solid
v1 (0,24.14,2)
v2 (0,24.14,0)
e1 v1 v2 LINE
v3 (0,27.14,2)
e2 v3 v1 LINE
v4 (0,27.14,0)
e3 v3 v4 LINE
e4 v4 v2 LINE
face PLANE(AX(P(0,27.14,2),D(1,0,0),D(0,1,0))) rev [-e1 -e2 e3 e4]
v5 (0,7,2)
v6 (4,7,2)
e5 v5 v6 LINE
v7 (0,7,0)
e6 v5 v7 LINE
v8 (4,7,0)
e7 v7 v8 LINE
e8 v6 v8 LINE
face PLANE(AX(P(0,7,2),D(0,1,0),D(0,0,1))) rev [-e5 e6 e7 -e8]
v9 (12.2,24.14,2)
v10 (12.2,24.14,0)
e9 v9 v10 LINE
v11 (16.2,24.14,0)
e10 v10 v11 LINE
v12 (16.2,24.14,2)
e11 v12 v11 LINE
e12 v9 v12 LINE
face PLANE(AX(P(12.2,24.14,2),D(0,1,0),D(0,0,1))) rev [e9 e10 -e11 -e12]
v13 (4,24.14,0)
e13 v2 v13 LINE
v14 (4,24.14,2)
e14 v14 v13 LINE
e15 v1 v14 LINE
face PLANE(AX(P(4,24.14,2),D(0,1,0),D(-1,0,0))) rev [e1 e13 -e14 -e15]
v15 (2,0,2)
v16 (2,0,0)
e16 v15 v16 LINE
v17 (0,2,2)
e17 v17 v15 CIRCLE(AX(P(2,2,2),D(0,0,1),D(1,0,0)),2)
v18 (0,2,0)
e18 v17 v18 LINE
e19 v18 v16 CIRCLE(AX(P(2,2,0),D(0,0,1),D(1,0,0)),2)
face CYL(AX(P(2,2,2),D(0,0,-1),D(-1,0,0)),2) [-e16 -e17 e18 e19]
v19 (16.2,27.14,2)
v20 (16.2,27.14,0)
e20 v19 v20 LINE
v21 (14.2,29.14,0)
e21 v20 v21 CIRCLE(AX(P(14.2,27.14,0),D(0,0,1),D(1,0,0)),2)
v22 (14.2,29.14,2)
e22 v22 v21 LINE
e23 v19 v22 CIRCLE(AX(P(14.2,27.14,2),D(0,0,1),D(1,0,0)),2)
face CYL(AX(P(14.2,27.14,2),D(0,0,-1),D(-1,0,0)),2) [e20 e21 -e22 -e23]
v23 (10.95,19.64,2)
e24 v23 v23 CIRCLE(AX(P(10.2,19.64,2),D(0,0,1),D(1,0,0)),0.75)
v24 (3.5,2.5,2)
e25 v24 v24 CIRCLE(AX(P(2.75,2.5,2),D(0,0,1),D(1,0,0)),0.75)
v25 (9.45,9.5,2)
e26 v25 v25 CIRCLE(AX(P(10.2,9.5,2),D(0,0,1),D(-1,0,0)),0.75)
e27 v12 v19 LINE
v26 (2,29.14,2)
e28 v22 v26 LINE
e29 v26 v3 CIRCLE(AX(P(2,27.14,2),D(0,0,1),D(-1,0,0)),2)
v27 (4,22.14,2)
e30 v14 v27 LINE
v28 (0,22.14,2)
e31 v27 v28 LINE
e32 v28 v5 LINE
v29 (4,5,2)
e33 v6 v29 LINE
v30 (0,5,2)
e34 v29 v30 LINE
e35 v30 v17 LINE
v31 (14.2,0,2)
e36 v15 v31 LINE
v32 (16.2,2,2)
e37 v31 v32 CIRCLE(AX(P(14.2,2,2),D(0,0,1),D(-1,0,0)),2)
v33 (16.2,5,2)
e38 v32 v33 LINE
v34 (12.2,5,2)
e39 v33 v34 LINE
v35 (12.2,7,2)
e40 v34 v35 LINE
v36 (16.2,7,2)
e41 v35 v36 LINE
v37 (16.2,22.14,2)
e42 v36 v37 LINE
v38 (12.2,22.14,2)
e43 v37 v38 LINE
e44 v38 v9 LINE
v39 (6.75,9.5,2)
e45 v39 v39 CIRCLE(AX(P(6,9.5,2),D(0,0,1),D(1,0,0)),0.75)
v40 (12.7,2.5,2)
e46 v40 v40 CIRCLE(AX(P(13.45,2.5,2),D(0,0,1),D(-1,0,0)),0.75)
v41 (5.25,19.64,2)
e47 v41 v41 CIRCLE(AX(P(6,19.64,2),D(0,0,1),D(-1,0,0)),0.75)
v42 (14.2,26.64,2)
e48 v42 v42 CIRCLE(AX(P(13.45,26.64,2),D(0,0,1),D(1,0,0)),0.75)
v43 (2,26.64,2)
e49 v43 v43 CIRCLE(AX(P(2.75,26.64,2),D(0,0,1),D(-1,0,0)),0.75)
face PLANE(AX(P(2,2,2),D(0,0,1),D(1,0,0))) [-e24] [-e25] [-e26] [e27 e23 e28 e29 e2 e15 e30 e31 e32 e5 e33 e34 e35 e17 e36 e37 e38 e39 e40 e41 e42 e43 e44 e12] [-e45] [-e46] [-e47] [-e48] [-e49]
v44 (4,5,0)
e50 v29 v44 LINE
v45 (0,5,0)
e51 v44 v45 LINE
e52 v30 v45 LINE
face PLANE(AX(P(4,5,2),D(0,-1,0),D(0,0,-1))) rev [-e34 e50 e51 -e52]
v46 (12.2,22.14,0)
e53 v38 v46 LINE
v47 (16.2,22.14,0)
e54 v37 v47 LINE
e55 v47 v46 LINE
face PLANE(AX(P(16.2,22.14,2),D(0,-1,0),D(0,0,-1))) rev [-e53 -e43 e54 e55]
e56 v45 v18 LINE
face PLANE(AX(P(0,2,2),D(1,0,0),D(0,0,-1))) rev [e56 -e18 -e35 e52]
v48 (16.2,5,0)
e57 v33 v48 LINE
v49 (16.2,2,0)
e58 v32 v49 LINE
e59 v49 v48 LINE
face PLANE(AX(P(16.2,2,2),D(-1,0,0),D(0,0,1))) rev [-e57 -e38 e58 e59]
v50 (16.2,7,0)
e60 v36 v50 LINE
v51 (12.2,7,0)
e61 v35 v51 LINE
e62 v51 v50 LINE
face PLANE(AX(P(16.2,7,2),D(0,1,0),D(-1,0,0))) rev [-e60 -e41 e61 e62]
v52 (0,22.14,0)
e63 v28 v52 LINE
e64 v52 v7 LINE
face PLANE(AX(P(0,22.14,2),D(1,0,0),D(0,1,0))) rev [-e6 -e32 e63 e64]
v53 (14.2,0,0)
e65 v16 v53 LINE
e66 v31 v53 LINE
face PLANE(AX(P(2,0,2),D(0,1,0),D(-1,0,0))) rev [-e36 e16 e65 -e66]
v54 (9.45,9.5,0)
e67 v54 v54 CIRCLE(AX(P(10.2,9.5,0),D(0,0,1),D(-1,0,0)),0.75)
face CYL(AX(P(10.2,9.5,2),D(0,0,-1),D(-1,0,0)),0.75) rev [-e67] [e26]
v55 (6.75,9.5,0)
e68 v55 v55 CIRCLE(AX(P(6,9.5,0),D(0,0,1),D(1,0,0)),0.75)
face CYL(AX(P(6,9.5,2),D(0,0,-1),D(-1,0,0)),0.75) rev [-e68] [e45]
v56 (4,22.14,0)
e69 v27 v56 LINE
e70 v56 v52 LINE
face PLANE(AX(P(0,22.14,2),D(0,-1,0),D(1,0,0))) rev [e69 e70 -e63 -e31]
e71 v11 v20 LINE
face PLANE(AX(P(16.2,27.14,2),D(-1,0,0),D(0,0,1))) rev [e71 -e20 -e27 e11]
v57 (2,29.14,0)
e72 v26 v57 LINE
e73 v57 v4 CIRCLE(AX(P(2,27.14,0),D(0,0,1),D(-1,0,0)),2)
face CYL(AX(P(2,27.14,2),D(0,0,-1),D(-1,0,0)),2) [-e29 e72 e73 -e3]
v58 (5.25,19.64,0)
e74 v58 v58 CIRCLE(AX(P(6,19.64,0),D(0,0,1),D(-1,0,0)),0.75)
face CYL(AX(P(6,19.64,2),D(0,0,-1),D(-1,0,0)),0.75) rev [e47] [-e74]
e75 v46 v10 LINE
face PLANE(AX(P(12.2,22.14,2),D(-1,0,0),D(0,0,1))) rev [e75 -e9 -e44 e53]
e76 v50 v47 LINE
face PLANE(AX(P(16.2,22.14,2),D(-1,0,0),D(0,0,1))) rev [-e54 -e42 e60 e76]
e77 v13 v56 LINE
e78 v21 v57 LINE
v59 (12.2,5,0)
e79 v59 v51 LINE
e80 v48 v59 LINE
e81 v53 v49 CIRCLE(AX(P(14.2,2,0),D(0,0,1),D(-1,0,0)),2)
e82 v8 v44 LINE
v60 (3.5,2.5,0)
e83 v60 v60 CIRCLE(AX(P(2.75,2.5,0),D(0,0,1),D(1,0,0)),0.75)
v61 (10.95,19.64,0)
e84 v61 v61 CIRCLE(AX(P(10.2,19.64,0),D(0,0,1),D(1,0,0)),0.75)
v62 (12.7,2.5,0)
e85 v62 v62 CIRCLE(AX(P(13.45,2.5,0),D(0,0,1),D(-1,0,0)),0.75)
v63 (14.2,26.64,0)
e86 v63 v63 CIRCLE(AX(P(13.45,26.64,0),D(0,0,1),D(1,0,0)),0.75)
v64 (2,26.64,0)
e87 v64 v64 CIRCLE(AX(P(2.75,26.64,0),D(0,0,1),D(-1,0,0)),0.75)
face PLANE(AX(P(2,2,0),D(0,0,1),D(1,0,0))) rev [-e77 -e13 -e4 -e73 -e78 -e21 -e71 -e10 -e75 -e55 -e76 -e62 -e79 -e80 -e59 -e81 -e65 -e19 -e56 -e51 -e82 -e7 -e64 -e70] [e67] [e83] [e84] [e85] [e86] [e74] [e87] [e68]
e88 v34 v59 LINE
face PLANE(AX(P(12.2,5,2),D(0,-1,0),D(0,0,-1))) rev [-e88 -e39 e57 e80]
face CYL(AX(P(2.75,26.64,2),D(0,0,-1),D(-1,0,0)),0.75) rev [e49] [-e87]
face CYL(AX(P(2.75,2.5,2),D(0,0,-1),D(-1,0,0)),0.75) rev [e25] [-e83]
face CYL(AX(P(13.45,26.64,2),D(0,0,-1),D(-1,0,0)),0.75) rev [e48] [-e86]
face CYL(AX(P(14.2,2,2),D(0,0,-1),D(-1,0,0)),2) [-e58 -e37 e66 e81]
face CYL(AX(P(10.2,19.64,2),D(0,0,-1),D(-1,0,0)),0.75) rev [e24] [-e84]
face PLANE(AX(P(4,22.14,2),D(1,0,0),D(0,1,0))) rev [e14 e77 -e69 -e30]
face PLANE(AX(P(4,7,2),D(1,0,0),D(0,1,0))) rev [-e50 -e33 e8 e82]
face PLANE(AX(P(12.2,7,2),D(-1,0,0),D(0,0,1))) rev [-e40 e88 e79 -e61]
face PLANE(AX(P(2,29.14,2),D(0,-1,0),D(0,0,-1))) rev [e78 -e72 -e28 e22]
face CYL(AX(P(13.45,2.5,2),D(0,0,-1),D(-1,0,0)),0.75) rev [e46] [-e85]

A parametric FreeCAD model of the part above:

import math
import FreeCAD as App
import Part
import Sketcher
from FreeCAD import Vector

doc = App.newDocument("Part")
body = doc.addObject("PartDesign::Body", "Body")

# Sketch on XY plane
sketch1 = body.newObject("Sketcher::SketchObject", "Sketch")
sketch1.AttachmentSupport = (doc.getObject("XY_Plane"), [""])
sketch1.MapMode = "FlatFace"
sketch1.addGeometry(Part.LineSegment(Vector(0, 22.1, 0), Vector(0, 7, 0)), False)
sketch1.addGeometry(Part.LineSegment(Vector(0, 7, 0), Vector(4, 7, 0)), False)
sketch1.addGeometry(Part.LineSegment(Vector(4, 7, 0), Vector(4, 5, 0)), False)
sketch1.addGeometry(Part.LineSegment(Vector(4, 5, 0), Vector(0, 5, 0)), False)
sketch1.addGeometry(Part.LineSegment(Vector(0, 5, 0), Vector(0, 2, 0)), False)
sketch1.addGeometry(Part.ArcOfCircle(Part.Circle(Vector(2, 2, 0), Vector(0, 0, 1), 2), math.radians(-180), math.radians(-90)), False)
sketch1.addGeometry(Part.LineSegment(Vector(2, 0, 0), Vector(14.2, 0, 0)), False)
sketch1.addGeometry(Part.ArcOfCircle(Part.Circle(Vector(14.2, 2, 0), Vector(0, 0, 1), 2), math.radians(-90), math.radians(0)), False)
sketch1.addGeometry(Part.LineSegment(Vector(16.2, 2, 0), Vector(16.2, 5, 0)), False)
sketch1.addGeometry(Part.LineSegment(Vector(16.2, 5, 0), Vector(12.2, 5, 0)), False)
sketch1.addGeometry(Part.LineSegment(Vector(12.2, 5, 0), Vector(12.2, 7, 0)), False)
sketch1.addGeometry(Part.LineSegment(Vector(12.2, 7, 0), Vector(16.2, 7, 0)), False)
sketch1.addGeometry(Part.LineSegment(Vector(16.2, 7, 0), Vector(16.2, 22.1, 0)), False)
sketch1.addGeometry(Part.LineSegment(Vector(16.2, 22.1, 0), Vector(12.2, 22.1, 0)), False)
sketch1.addGeometry(Part.LineSegment(Vector(12.2, 22.1, 0), Vector(12.2, 24.1, 0)), False)
sketch1.addGeometry(Part.LineSegment(Vector(12.2, 24.1, 0), Vector(16.2, 24.1, 0)), False)
sketch1.addGeometry(Part.LineSegment(Vector(16.2, 24.1, 0), Vector(16.2, 27.1, 0)), False)
sketch1.addGeometry(Part.ArcOfCircle(Part.Circle(Vector(14.2, 27.1, 0), Vector(0, 0, 1), 2), math.radians(0), math.radians(90)), False)
sketch1.addGeometry(Part.LineSegment(Vector(14.2, 29.1, 0), Vector(2, 29.1, 0)), False)
sketch1.addGeometry(Part.ArcOfCircle(Part.Circle(Vector(2, 27.1, 0), Vector(0, 0, 1), 2), math.radians(90), math.radians(180)), False)
sketch1.addGeometry(Part.LineSegment(Vector(0, 27.1, 0), Vector(0, 24.1, 0)), False)
sketch1.addGeometry(Part.LineSegment(Vector(0, 24.1, 0), Vector(4, 24.1, 0)), False)
sketch1.addGeometry(Part.LineSegment(Vector(4, 24.1, 0), Vector(4, 22.1, 0)), False)
sketch1.addGeometry(Part.LineSegment(Vector(4, 22.1, 0), Vector(0, 22.1, 0)), False)
sketch1.addGeometry(Part.Circle(Vector(2.8, 2.5, 0), Vector(0, 0, 1), 0.8), False)
sketch1.addGeometry(Part.Circle(Vector(6, 9.5, 0), Vector(0, 0, 1), 0.8), False)
sketch1.addGeometry(Part.Circle(Vector(13.4, 2.5, 0), Vector(0, 0, 1), 0.8), False)
sketch1.addGeometry(Part.Circle(Vector(10.2, 9.5, 0), Vector(0, 0, 1), 0.8), False)
sketch1.addGeometry(Part.Circle(Vector(6, 19.6, 0), Vector(0, 0, 1), 0.8), False)
sketch1.addGeometry(Part.Circle(Vector(2.8, 26.6, 0), Vector(0, 0, 1), 0.8), False)
sketch1.addGeometry(Part.Circle(Vector(10.2, 19.6, 0), Vector(0, 0, 1), 0.8), False)
sketch1.addGeometry(Part.Circle(Vector(13.4, 26.6, 0), Vector(0, 0, 1), 0.8), False)
sketch1.addConstraint(Sketcher.Constraint("Coincident", 0, 2, 1, 1))
sketch1.addConstraint(Sketcher.Constraint("Coincident", 1, 2, 2, 1))
sketch1.addConstraint(Sketcher.Constraint("Coincident", 2, 2, 3, 1))
sketch1.addConstraint(Sketcher.Constraint("Coincident", 3, 2, 4, 1))
sketch1.addConstraint(Sketcher.Constraint("Tangent", 4, 2, 5, 1))
sketch1.addConstraint(Sketcher.Constraint("Tangent", 5, 2, 6, 1))
sketch1.addConstraint(Sketcher.Constraint("Tangent", 6, 2, 7, 1))
sketch1.addConstraint(Sketcher.Constraint("Tangent", 7, 2, 8, 1))
sketch1.addConstraint(Sketcher.Constraint("Coincident", 8, 2, 9, 1))
sketch1.addConstraint(Sketcher.Constraint("Coincident", 9, 2, 10, 1))
sketch1.addConstraint(Sketcher.Constraint("Coincident", 10, 2, 11, 1))
sketch1.addConstraint(Sketcher.Constraint("Coincident", 11, 2, 12, 1))
sketch1.addConstraint(Sketcher.Constraint("Coincident", 12, 2, 13, 1))
sketch1.addConstraint(Sketcher.Constraint("Coincident", 13, 2, 14, 1))
sketch1.addConstraint(Sketcher.Constraint("Coincident", 14, 2, 15, 1))
sketch1.addConstraint(Sketcher.Constraint("Coincident", 15, 2, 16, 1))
sketch1.addConstraint(Sketcher.Constraint("Tangent", 16, 2, 17, 1))
sketch1.addConstraint(Sketcher.Constraint("Tangent", 17, 2, 18, 1))
sketch1.addConstraint(Sketcher.Constraint("Tangent", 18, 2, 19, 1))
sketch1.addConstraint(Sketcher.Constraint("Tangent", 19, 2, 20, 1))
sketch1.addConstraint(Sketcher.Constraint("Coincident", 20, 2, 21, 1))
sketch1.addConstraint(Sketcher.Constraint("Coincident", 21, 2, 22, 1))
sketch1.addConstraint(Sketcher.Constraint("Coincident", 22, 2, 23, 1))
sketch1.addConstraint(Sketcher.Constraint("Coincident", 23, 2, 0, 1))
sketch1.addConstraint(Sketcher.Constraint("Vertical", 0))
sketch1.addConstraint(Sketcher.Constraint("Horizontal", 1))
sketch1.addConstraint(Sketcher.Constraint("Vertical", 2))
sketch1.addConstraint(Sketcher.Constraint("Horizontal", 3))
sketch1.addConstraint(Sketcher.Constraint("Vertical", 4))
sketch1.addConstraint(Sketcher.Constraint("Horizontal", 6))
sketch1.addConstraint(Sketcher.Constraint("Vertical", 8))
sketch1.addConstraint(Sketcher.Constraint("Horizontal", 9))
sketch1.addConstraint(Sketcher.Constraint("Vertical", 10))
sketch1.addConstraint(Sketcher.Constraint("Horizontal", 11))
sketch1.addConstraint(Sketcher.Constraint("Vertical", 12))
sketch1.addConstraint(Sketcher.Constraint("Horizontal", 13))
sketch1.addConstraint(Sketcher.Constraint("Vertical", 14))
sketch1.addConstraint(Sketcher.Constraint("Horizontal", 15))
sketch1.addConstraint(Sketcher.Constraint("Vertical", 16))
sketch1.addConstraint(Sketcher.Constraint("Horizontal", 18))
sketch1.addConstraint(Sketcher.Constraint("Vertical", 20))
sketch1.addConstraint(Sketcher.Constraint("Horizontal", 21))
sketch1.addConstraint(Sketcher.Constraint("Vertical", 22))
sketch1.addConstraint(Sketcher.Constraint("Horizontal", 23))
sketch1.addConstraint(Sketcher.Constraint("Equal", 5, 7))
sketch1.addConstraint(Sketcher.Constraint("Equal", 7, 17))
sketch1.addConstraint(Sketcher.Constraint("Equal", 17, 19))
sketch1.addConstraint(Sketcher.Constraint("Equal", 24, 25))
sketch1.addConstraint(Sketcher.Constraint("Equal", 25, 26))
sketch1.addConstraint(Sketcher.Constraint("Equal", 26, 27))
sketch1.addConstraint(Sketcher.Constraint("Equal", 27, 28))
sketch1.addConstraint(Sketcher.Constraint("Equal", 28, 29))
sketch1.addConstraint(Sketcher.Constraint("Equal", 29, 30))
sketch1.addConstraint(Sketcher.Constraint("Equal", 30, 31))
sketch1.addConstraint(Sketcher.Constraint("PointOnObject", 0, 2, -2))
sketch1.addConstraint(Sketcher.Constraint("PointOnObject", 3, 2, -2))
sketch1.addConstraint(Sketcher.Constraint("PointOnObject", 5, 2, -1))
sketch1.addConstraint(Sketcher.Constraint("PointOnObject", 19, 2, -2))
sketch1.addConstraint(Sketcher.Constraint("Horizontal", 24, 3, 26, 3))
sketch1.addConstraint(Sketcher.Constraint("Horizontal", 25, 3, 27, 3))
sketch1.addConstraint(Sketcher.Constraint("Horizontal", 28, 3, 30, 3))
sketch1.addConstraint(Sketcher.Constraint("Horizontal", 29, 3, 31, 3))
sketch1.addConstraint(Sketcher.Constraint("Horizontal", 3, 2, 8, 2))
sketch1.addConstraint(Sketcher.Constraint("Horizontal", 1, 2, 10, 2))
sketch1.addConstraint(Sketcher.Constraint("Horizontal", 15, 2, 20, 2))
sketch1.addConstraint(Sketcher.Constraint("Horizontal", 13, 2, 22, 2))
sketch1.addConstraint(Sketcher.Constraint("Vertical", 7, 3, 17, 3))
sketch1.addConstraint(Sketcher.Constraint("Vertical", 25, 3, 28, 3))
sketch1.addConstraint(Sketcher.Constraint("Vertical", 24, 3, 29, 3))
sketch1.addConstraint(Sketcher.Constraint("Vertical", 27, 3, 30, 3))
sketch1.addConstraint(Sketcher.Constraint("Vertical", 26, 3, 31, 3))
sketch1.addConstraint(Sketcher.Constraint("Vertical", 8, 2, 11, 2))
sketch1.addConstraint(Sketcher.Constraint("Vertical", 10, 2, 13, 2))
sketch1.addConstraint(Sketcher.Constraint("Vertical", 2, 2, 21, 2))
sketch1.addConstraint(Sketcher.Constraint("Equal", 3, 9))
sketch1.addConstraint(Sketcher.Constraint("Equal", 10, 14))
sketch1.addConstraint(Sketcher.Constraint("Equal", 8, 16))
sketch1.addConstraint(Sketcher.Constraint("Radius", 5, 2.0))
sketch1.addConstraint(Sketcher.Constraint("Diameter", 24, 1.5))
sketch1.addConstraint(Sketcher.Constraint("DistanceX", 1, 1, 1, 2, 4.0))
sketch1.addConstraint(Sketcher.Constraint("DistanceY", 2, 2, 2, 1, 2.0))
sketch1.addConstraint(Sketcher.Constraint("DistanceY", 4, 2, 4, 1, 3.0))
sketch1.addConstraint(Sketcher.Constraint("DistanceX", 6, 1, 6, 2, 12.2))
sketch1.addConstraint(Sketcher.Constraint("DistanceX", -1, 1, 25, 3, 6.0))
sketch1.addConstraint(Sketcher.Constraint("DistanceY", 24, 3, 25, 3, 7.0))
sketch1.addConstraint(Sketcher.Constraint("DistanceX", 27, 3, 7, 3, 4.0))
sketch1.addConstraint(Sketcher.Constraint("DistanceY", 28, 3, 29, 3, 7.0))
sketch1.addConstraint(Sketcher.Constraint("DistanceY", 0, 2, 0, 1, 15.14))
sketch1.addConstraint(Sketcher.Constraint("DistanceY", -1, 1, 24, 3, 2.5))
sketch1.addConstraint(Sketcher.Constraint("DistanceX", 24, 3, 26, 3, 10.7))
sketch1.addConstraint(Sketcher.Constraint("DistanceY", 28, 3, 19, 3, 7.5))
sketch1.addConstraint(Sketcher.Constraint("DistanceX", -1, 1, 24, 3, 2.75))
pad1 = body.newObject("PartDesign::Pad", "Pad")
pad1.Profile = sketch1
pad1.Length = 2

doc.recompute()
